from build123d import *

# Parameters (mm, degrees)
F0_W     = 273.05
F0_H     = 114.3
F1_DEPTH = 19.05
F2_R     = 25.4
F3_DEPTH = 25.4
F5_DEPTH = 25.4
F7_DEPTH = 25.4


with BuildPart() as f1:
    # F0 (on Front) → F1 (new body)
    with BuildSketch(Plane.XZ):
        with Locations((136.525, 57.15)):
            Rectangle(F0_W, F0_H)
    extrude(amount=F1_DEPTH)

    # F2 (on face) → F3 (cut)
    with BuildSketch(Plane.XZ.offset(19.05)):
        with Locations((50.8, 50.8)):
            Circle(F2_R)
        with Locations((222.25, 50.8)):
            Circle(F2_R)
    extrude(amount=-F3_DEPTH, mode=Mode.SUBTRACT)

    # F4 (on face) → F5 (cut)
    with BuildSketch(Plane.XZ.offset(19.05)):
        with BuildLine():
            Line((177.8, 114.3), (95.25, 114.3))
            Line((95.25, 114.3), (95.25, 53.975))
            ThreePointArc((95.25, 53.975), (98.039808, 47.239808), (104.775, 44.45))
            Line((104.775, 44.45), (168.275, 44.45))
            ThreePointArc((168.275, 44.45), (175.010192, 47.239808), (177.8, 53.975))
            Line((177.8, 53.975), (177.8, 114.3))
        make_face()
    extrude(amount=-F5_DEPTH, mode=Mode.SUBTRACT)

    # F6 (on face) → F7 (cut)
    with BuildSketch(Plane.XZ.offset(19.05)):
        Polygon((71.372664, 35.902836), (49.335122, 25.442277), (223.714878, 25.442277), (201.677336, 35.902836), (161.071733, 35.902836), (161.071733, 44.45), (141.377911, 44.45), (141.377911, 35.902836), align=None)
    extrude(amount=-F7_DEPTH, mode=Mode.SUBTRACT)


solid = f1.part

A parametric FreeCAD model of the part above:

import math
import FreeCAD as App
import Part
import Sketcher

V = App.Vector
Q = App.Units.Quantity


def add_polygon(sketch, points):
    """Adds a closed chain of lines whose ends are joined by coincident constraints."""
    first, n = sketch.GeometryCount, len(points)
    for a, b in zip(points, points[1:] + points[:1]):
        sketch.addGeometry(Part.LineSegment(App.Vector(*a, 0), App.Vector(*b, 0)), False)
    for i in range(n):
        sketch.addConstraint(Sketcher.Constraint("Coincident", first + i, 2, first + (i + 1) % n, 1))

doc = App.newDocument("Part")
params = doc.addObject("Spreadsheet::Sheet", "Params")
for row, (alias, value) in enumerate([
    ("sketch1_height", "4.5 in"),
    ("sketch1_width", "10.75 in"),
    ("pad1_length", "0.75 in"),
    ("sketch2_diameter", "2 in"),
    ("pocket1_length", "1 in"),
    ("sketch3_width", "2.5 in"),
    ("sketch3_radius", "0.375 in"),
    ("sketch3_height", "2.375 in"),
    ("pocket2_length", "1 in"),
    ("pocket3_length", "1 in"),
], start=1):
    params.set(f"A{row}", alias)
    params.set(f"B{row}", "=" + value)
    params.setAlias(f"B{row}", alias)

body = doc.addObject("PartDesign::Body", "Body")

sketch1 = body.newObject("Sketcher::SketchObject", "Sketch")
sketch1.AttachmentSupport = (doc.getObject("XZ_Plane"), [""])
sketch1.MapMode = "FlatFace"
add_polygon(sketch1, [(0, 114), (0, 0), (273, 0), (273, 114)])
sketch1.addConstraint(Sketcher.Constraint("Vertical", 0))
sketch1.addConstraint(Sketcher.Constraint("Horizontal", 1))
sketch1.addConstraint(Sketcher.Constraint("Vertical", 2))
sketch1.addConstraint(Sketcher.Constraint("Horizontal", 3))
sketch1.addConstraint(Sketcher.Constraint("Coincident", 0, 2, -1, 1))
sketch1.addConstraint(Sketcher.Constraint("DistanceY", 0, 2, 0, 1, Q("4.5 in")))
sketch1.addConstraint(Sketcher.Constraint("DistanceX", 1, 1, 1, 2, Q("10.75 in")))
sketch1.setExpression("Constraints[9]", "Params.sketch1_height")
sketch1.setExpression("Constraints[10]", "Params.sketch1_width")
pad1 = body.newObject("PartDesign::Pad", "Pad")
pad1.Profile = sketch1
pad1.setExpression("Length", "Params.pad1_length")

sketch2 = body.newObject("Sketcher::SketchObject", "Sketch001")
sketch2.AttachmentSupport = (doc.getObject("XZ_Plane"), [""])
sketch2.MapMode = "FlatFace"
sketch2.AttachmentOffset = App.Placement(V(0, 0, 0.75 * 25.4), App.Rotation())
sketch2.addGeometry(Part.Circle(V(51, 51, 0), V(0, 0, 1), 25), False)
sketch2.addGeometry(Part.Circle(V(222, 51, 0), V(0, 0, 1), 25), False)
sketch2.addConstraint(Sketcher.Constraint("Equal", 0, 1))
sketch2.addConstraint(Sketcher.Constraint("Horizontal", 0, 3, 1, 3))
sketch2.addConstraint(Sketcher.Constraint("Diameter", 0, Q("2 in")))
sketch2.addConstraint(Sketcher.Constraint("DistanceX", -1, 1, 0, 3, Q("2 in")))
sketch2.addConstraint(Sketcher.Constraint("DistanceY", -1, 1, 0, 3, Q("2 in")))
sketch2.addConstraint(Sketcher.Constraint("DistanceX", -1, 1, 1, 3, Q("8.75 in")))
sketch2.setExpression("Constraints[2]", "Params.sketch2_diameter")
pocket1 = body.newObject("PartDesign::Pocket", "Pocket")
pocket1.Profile = sketch2
pocket1.setExpression("Length", "Params.pocket1_length")

sketch3 = body.newObject("Sketcher::SketchObject", "Sketch002")
sketch3.AttachmentSupport = (doc.getObject("XZ_Plane"), [""])
sketch3.MapMode = "FlatFace"
sketch3.AttachmentOffset = App.Placement(V(0, 0, 0.75 * 25.4), App.Rotation())
sketch3.addGeometry(Part.LineSegment(V(178, 114, 0), V(95, 114, 0)), False)
sketch3.addGeometry(Part.LineSegment(V(95, 114, 0), V(95, 54, 0)), False)
sketch3.addGeometry(Part.ArcOfCircle(Part.Circle(V(105, 54, 0), V(0, 0, 1), 10), math.radians(-180), math.radians(-90)), False)
sketch3.addGeometry(Part.LineSegment(V(105, 44, 0), V(168, 44, 0)), False)
sketch3.addGeometry(Part.ArcOfCircle(Part.Circle(V(168, 54, 0), V(0, 0, 1), 10), math.radians(-90), math.radians(0)), False)
sketch3.addGeometry(Part.LineSegment(V(178, 54, 0), V(178, 114, 0)), False)
sketch3.addConstraint(Sketcher.Constraint("Coincident", 0, 2, 1, 1))
sketch3.addConstraint(Sketcher.Constraint("Tangent", 1, 2, 2, 1))
sketch3.addConstraint(Sketcher.Constraint("Tangent", 2, 2, 3, 1))
sketch3.addConstraint(Sketcher.Constraint("Tangent", 3, 2, 4, 1))
sketch3.addConstraint(Sketcher.Constraint("Tangent", 4, 2, 5, 1))
sketch3.addConstraint(Sketcher.Constraint("Coincident", 5, 2, 0, 1))
sketch3.addConstraint(Sketcher.Constraint("Horizontal", 0))
sketch3.addConstraint(Sketcher.Constraint("Vertical", 1))
sketch3.addConstraint(Sketcher.Constraint("Horizontal", 3))
sketch3.addConstraint(Sketcher.Constraint("Vertical", 5))
sketch3.addConstraint(Sketcher.Constraint("Equal", 2, 4))
sketch3.addConstraint(Sketcher.Constraint("DistanceX", 3, 1, 3, 2, Q("2.5 in")))
sketch3.addConstraint(Sketcher.Constraint("DistanceX", -1, 1, 4, 2, Q("7 in")))
sketch3.addConstraint(Sketcher.Constraint("Radius", 2, Q("0.375 in")))
sketch3.addConstraint(Sketcher.Constraint("DistanceY", -1, 1, 0, 2, Q("4.5 in")))
sketch3.addConstraint(Sketcher.Constraint("DistanceY", 1, 2, 1, 1, Q("2.375 in")))
sketch3.setExpression("Constraints[11]", "Params.sketch3_width")
sketch3.setExpression("Constraints[13]", "Params.sketch3_radius")
sketch3.setExpression("Constraints[15]", "Params.sketch3_height")
pocket2 = body.newObject("PartDesign::Pocket", "Pocket001")
pocket2.Profile = sketch3
pocket2.setExpression("Length", "Params.pocket2_length")

sketch4 = body.newObject("Sketcher::SketchObject", "Sketch003")
sketch4.AttachmentSupport = (doc.getObject("XZ_Plane"), [""])
sketch4.MapMode = "FlatFace"
sketch4.AttachmentOffset = App.Placement(V(0, 0, 0.75 * 25.4), App.Rotation())
add_polygon(sketch4, [(71, 36), (49, 25), (224, 25), (202, 36), (161, 36), (161, 44), (141, 44), (141, 36)])
sketch4.addConstraint(Sketcher.Constraint("Horizontal", 1))
sketch4.addConstraint(Sketcher.Constraint("Horizontal", 3))
sketch4.addConstraint(Sketcher.Constraint("Vertical", 4))
sketch4.addConstraint(Sketcher.Constraint("Horizontal", 5))
sketch4.addConstraint(Sketcher.Constraint("Vertical", 6))
sketch4.addConstraint(Sketcher.Constraint("Horizontal", 7))
sketch4.addConstraint(Sketcher.Constraint("Horizontal", 3, 2, 6, 2))
sketch4.addConstraint(Sketcher.Constraint("Equal", 0, 2))
sketch4.addConstraint(Sketcher.Constraint("DistanceY", -1, 1, 4, 2, Q("1.75 in")))
sketch4.addConstraint(Sketcher.Constraint("DistanceX", 5, 2, 5, 1, Q("19.693822 mm")))
sketch4.addConstraint(Sketcher.Constraint("Distance", 0, Q("24.394191 mm")))
sketch4.addConstraint(Sketcher.Constraint("DistanceX", 1, 1, 1, 2, Q("174.379756 mm")))
sketch4.addConstraint(Sketcher.Constraint("DistanceX", 3, 2, 3, 1, Q("40.605603 mm")))
sketch4.addConstraint(Sketcher.Constraint("DistanceX", 7, 2, 7, 1, Q("70.005247 mm")))
sketch4.addConstraint(Sketcher.Constraint("DistanceY", 4, 1, 4, 2, Q("8.547164 mm")))
sketch4.addConstraint(Sketcher.Constraint("DistanceX", -1, 1, 0, 2, Q("49.335122 mm")))
pocket3 = body.newObject("PartDesign::Pocket", "Pocket002")
pocket3.Profile = sketch4
pocket3.setExpression("Length", "Params.pocket3_length")

doc.recompute()
